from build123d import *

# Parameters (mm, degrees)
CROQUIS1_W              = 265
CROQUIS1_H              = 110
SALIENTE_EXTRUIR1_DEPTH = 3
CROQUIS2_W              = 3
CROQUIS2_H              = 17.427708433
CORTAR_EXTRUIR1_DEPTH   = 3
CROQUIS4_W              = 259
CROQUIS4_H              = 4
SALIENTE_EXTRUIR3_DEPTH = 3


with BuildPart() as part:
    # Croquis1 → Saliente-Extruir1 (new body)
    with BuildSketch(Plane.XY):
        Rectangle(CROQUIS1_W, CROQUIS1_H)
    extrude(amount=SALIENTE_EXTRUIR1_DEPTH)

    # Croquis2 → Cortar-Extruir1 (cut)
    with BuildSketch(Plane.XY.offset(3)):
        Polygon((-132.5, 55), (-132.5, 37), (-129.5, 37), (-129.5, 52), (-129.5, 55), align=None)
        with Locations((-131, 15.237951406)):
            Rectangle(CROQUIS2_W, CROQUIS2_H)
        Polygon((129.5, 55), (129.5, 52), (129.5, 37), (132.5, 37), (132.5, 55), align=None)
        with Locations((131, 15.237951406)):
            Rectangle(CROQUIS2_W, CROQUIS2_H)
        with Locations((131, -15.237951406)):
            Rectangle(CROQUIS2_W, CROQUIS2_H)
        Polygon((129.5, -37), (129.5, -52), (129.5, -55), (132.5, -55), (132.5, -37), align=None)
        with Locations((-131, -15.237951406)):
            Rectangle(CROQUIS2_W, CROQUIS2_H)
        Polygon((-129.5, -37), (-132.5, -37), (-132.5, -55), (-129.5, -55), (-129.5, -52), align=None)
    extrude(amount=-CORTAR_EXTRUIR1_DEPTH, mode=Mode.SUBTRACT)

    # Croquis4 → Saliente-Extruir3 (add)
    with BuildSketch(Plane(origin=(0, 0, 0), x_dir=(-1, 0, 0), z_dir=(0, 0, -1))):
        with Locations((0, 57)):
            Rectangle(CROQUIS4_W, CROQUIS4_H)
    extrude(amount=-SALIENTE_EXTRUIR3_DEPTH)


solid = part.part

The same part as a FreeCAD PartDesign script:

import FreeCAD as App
import Part
import Sketcher


def add_polygon(sketch, points):
    """Adds a closed chain of lines whose ends are joined by coincident constraints."""
    first, n = sketch.GeometryCount, len(points)
    for a, b in zip(points, points[1:] + points[:1]):
        sketch.addGeometry(Part.LineSegment(App.Vector(*a, 0), App.Vector(*b, 0)), False)
    for i in range(n):
        sketch.addConstraint(Sketcher.Constraint("Coincident", first + i, 2, first + (i + 1) % n, 1))

doc = App.newDocument("Part")
body = doc.addObject("PartDesign::Body", "Body")

sketch1 = body.newObject("Sketcher::SketchObject", "Sketch")
sketch1.AttachmentSupport = (doc.getObject("XY_Plane"), [""])
sketch1.MapMode = "FlatFace"
add_polygon(sketch1, [(-132, 55), (-132, -55), (132, -55), (132, 55)])
sketch1.addConstraint([
    Sketcher.Constraint("Vertical", 0),
    Sketcher.Constraint("Horizontal", 1),
    Sketcher.Constraint("Vertical", 2),
    Sketcher.Constraint("Horizontal", 3),
    Sketcher.Constraint("Symmetric", 0, 2, 2, 2, -1, 1),
    Sketcher.Constraint("DistanceX", 1, 1, 1, 2, 265.0),
    Sketcher.Constraint("DistanceY", 0, 2, 0, 1, 110.0),
])
pad1 = body.newObject("PartDesign::Pad", "Pad")
pad1.Profile = sketch1
pad1.Length = 3

sketch2 = body.newObject("Sketcher::SketchObject", "Sketch001")
sketch2.AttachmentSupport = (doc.getObject("XY_Plane"), [""])
sketch2.MapMode = "FlatFace"
sketch2.AttachmentOffset = App.Placement(App.Vector(0, 0, 3), App.Rotation())
add_polygon(sketch2, [(-132.5, 55), (-132.5, 37), (-129.5, 37), (-129.5, 55)])
add_polygon(sketch2, [(-132.5, 24), (-132.5, 6.5), (-129.5, 6.5), (-129.5, 24)])
add_polygon(sketch2, [(129.5, 55), (129.5, 37), (132.5, 37), (132.5, 55)])
add_polygon(sketch2, [(129.5, 24), (129.5, 6.5), (132.5, 6.5), (132.5, 24)])
add_polygon(sketch2, [(129.5, -6.5), (129.5, -24), (132.5, -24), (132.5, -6.5)])
add_polygon(sketch2, [(129.5, -37), (129.5, -55), (132.5, -55), (132.5, -37)])
add_polygon(sketch2, [(-132.5, -6.5), (-132.5, -24), (-129.5, -24), (-129.5, -6.5)])
add_polygon(sketch2, [(-129.5, -37), (-132.5, -37), (-132.5, -55), (-129.5, -55)])
sketch2.addConstraint([
    Sketcher.Constraint("Vertical", 0),
    Sketcher.Constraint("Horizontal", 1),
    Sketcher.Constraint("Vertical", 2),
    Sketcher.Constraint("Horizontal", 3),
    Sketcher.Constraint("Vertical", 4),
    Sketcher.Constraint("Horizontal", 5),
    Sketcher.Constraint("Vertical", 6),
    Sketcher.Constraint("Horizontal", 7),
    Sketcher.Constraint("Vertical", 8),
    Sketcher.Constraint("Horizontal", 9),
    Sketcher.Constraint("Vertical", 10),
    Sketcher.Constraint("Horizontal", 11),
    Sketcher.Constraint("Vertical", 12),
    Sketcher.Constraint("Horizontal", 13),
    Sketcher.Constraint("Vertical", 14),
    Sketcher.Constraint("Horizontal", 15),
    Sketcher.Constraint("Vertical", 16),
    Sketcher.Constraint("Horizontal", 17),
    Sketcher.Constraint("Vertical", 18),
    Sketcher.Constraint("Horizontal", 19),
    Sketcher.Constraint("Vertical", 20),
    Sketcher.Constraint("Horizontal", 21),
    Sketcher.Constraint("Vertical", 22),
    Sketcher.Constraint("Horizontal", 23),
    Sketcher.Constraint("Vertical", 24),
    Sketcher.Constraint("Horizontal", 25),
    Sketcher.Constraint("Vertical", 26),
    Sketcher.Constraint("Horizontal", 27),
    Sketcher.Constraint("Horizontal", 28),
    Sketcher.Constraint("Vertical", 29),
    Sketcher.Constraint("Horizontal", 30),
    Sketcher.Constraint("Vertical", 31),
    Sketcher.Constraint("Symmetric", 6, 2, 16, 2, -1, 1),
    Sketcher.Constraint("Symmetric", 4, 2, 18, 2, -1, 1),
    Sketcher.Constraint("Symmetric", 2, 2, 20, 2, -1, 1),
    Sketcher.Constraint("Symmetric", 0, 2, 22, 2, -1, 1),
    Sketcher.Constraint("Symmetric", 14, 2, 24, 2, -1, 1),
    Sketcher.Constraint("Symmetric", 12, 2, 26, 2, -1, 1),
    Sketcher.Constraint("Symmetric", 9, 2, 28, 2, -1, 1),
    Sketcher.Constraint("Symmetric", 11, 2, 30, 2, -1, 1),
    Sketcher.Constraint("Symmetric", 1, 2, 8, 2, -2),
    Sketcher.Constraint("Symmetric", 3, 2, 10, 2, -2),
    Sketcher.Constraint("Symmetric", 5, 2, 12, 2, -2),
    Sketcher.Constraint("Symmetric", 7, 2, 14, 2, -2),
    Sketcher.Constraint("Vertical", 3, 2, 4, 2),
    Sketcher.Constraint("Vertical", 2, 2, 5, 2),
    Sketcher.Constraint("DistanceX", 1, 1, 1, 2, 3.0),
    Sketcher.Constraint("DistanceY", 0, 2, 0, 1, 18.0),
    Sketcher.Constraint("DistanceY", -1, 1, 0, 2, 37.0),
    Sketcher.Constraint("DistanceX", 1, 2, 8, 2, 259.0),
    Sketcher.Constraint("DistanceY", 4, 2, 4, 1, 17.427708),
    Sketcher.Constraint("DistanceY", 16, 2, 15, 2, 47.903611),
])
pocket1 = body.newObject("PartDesign::Pocket", "Pocket")
pocket1.Profile = sketch2
pocket1.Length = 3

sketch3 = body.newObject("Sketcher::SketchObject", "Sketch002")
sketch3.AttachmentSupport = (doc.getObject("XY_Plane"), [""])
sketch3.MapMode = "FlatFace"
add_polygon(sketch3, [(129.5, 59), (129.5, 55), (-129.5, 55), (-129.5, 59)])
sketch3.addConstraint([
    Sketcher.Constraint("Vertical", 0),
    Sketcher.Constraint("Horizontal", 1),
    Sketcher.Constraint("Vertical", 2),
    Sketcher.Constraint("Horizontal", 3),
    Sketcher.Constraint("DistanceX", 1, 2, 1, 1, 259.0),
    Sketcher.Constraint("DistanceY", 0, 2, 0, 1, 4.0),
    Sketcher.Constraint("DistanceY", -1, 1, 0, 2, 55.0),
    Sketcher.Constraint("DistanceX", -1, 1, 0, 2, 129.5),
])
pad2 = body.newObject("PartDesign::Pad", "Pad001")
pad2.Profile = sketch3
pad2.Length = 3

doc.recompute()
